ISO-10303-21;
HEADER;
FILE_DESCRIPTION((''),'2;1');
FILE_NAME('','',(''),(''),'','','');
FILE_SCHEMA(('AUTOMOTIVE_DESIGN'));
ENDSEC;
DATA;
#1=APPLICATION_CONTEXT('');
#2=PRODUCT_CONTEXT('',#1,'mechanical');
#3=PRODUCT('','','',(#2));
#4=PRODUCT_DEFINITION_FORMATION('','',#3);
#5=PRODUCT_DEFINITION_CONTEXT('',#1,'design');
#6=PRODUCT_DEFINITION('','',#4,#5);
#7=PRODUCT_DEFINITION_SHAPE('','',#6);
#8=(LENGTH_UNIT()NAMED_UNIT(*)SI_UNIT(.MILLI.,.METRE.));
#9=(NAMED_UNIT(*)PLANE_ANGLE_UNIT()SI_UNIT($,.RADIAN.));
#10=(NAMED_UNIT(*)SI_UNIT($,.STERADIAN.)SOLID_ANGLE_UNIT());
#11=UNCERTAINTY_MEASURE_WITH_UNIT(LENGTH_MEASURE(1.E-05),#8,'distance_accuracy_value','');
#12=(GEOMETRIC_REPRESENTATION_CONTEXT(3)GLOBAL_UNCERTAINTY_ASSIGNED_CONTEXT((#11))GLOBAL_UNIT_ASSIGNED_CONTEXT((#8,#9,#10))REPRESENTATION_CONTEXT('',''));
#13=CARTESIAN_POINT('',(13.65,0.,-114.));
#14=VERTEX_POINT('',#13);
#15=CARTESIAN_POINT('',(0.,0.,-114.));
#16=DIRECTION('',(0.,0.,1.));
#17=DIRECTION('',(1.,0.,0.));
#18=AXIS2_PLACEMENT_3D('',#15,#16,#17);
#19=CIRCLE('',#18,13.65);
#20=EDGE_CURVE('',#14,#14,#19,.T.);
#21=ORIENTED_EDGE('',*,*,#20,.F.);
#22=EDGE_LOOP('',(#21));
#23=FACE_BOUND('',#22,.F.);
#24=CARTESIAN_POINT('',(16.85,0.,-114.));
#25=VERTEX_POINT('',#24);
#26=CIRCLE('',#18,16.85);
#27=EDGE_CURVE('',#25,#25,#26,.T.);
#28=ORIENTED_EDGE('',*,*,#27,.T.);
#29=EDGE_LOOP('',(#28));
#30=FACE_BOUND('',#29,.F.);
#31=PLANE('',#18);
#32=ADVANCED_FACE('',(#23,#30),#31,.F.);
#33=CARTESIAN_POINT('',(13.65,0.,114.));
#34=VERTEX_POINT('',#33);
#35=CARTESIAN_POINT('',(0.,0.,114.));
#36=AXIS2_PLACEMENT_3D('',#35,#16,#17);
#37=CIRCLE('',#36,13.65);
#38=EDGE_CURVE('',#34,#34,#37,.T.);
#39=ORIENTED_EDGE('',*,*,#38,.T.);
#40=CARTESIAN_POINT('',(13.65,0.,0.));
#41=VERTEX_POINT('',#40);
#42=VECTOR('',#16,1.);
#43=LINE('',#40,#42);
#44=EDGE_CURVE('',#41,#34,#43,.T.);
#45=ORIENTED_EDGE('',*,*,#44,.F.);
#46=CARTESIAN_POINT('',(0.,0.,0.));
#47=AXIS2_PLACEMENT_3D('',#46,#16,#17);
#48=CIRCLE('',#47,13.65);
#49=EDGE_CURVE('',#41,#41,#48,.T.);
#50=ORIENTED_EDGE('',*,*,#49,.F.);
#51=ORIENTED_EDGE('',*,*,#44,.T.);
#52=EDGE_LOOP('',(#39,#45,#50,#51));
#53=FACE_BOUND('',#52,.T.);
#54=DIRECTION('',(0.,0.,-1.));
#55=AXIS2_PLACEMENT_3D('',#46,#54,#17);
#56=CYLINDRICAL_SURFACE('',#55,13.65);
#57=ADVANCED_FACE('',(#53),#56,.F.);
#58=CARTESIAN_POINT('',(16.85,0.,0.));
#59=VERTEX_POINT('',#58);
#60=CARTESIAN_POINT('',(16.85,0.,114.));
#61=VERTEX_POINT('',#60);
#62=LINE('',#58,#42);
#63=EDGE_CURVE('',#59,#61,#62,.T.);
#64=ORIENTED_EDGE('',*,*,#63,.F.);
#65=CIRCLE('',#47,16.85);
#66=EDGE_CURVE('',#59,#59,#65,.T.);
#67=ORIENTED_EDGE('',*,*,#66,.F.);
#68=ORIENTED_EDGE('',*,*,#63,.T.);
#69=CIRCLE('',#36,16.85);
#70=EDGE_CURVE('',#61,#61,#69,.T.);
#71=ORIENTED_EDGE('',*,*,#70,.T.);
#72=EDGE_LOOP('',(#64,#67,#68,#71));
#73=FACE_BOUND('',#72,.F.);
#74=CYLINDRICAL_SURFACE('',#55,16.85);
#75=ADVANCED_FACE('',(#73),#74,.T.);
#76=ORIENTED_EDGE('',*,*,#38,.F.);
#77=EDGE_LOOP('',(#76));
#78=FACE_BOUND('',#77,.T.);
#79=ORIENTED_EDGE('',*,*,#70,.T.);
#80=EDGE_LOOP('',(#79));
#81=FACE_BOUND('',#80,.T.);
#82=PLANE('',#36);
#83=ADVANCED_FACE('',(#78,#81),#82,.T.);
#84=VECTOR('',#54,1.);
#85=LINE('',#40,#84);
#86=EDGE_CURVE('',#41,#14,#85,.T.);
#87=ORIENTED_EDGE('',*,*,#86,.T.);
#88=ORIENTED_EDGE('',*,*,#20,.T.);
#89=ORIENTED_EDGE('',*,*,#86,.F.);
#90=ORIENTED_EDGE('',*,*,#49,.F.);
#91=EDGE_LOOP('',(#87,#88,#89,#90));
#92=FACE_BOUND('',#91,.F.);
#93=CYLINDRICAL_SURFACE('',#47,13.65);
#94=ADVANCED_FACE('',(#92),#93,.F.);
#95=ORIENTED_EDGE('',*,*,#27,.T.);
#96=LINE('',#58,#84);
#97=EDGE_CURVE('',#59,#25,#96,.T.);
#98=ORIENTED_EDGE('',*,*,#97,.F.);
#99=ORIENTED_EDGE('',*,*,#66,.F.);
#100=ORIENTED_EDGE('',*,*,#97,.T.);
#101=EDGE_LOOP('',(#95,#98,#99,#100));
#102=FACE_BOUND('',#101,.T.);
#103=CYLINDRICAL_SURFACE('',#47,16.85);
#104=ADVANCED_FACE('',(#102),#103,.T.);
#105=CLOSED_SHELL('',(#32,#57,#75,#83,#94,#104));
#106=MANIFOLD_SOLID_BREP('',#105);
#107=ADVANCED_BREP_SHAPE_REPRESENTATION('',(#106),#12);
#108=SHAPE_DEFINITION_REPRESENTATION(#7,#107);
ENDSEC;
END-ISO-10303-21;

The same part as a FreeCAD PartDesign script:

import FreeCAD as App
import Part
import Sketcher
Q = App.Units.Quantity

doc = App.newDocument("Part")
body = doc.addObject("PartDesign::Body", "Body")

sketch1 = body.newObject("Sketcher::SketchObject", "Sketch")
sketch1.AttachmentSupport = (doc.getObject("XY_Plane"), [""])
sketch1.MapMode = "FlatFace"
sketch1.addGeometry(Part.Circle(App.Vector(0, 0, 0), App.Vector(0, 0, 1), 17), False)
sketch1.addGeometry(Part.Circle(App.Vector(0, 0, 0), App.Vector(0, 0, 1), 14), False)
sketch1.addConstraint(Sketcher.Constraint("Coincident", 0, 3, -1, 1))
sketch1.addConstraint(Sketcher.Constraint("Coincident", 1, 3, -1, 1))
sketch1.addConstraint(Sketcher.Constraint("Diameter", 0, Q("33.7 mm")))
sketch1.addConstraint(Sketcher.Constraint("Diameter", 1, Q("27.3 mm")))
pad1 = body.newObject("PartDesign::Pad", "Pad")
pad1.Profile = sketch1
pad1.Length = 228
pad1.Midplane = True

doc.recompute()
